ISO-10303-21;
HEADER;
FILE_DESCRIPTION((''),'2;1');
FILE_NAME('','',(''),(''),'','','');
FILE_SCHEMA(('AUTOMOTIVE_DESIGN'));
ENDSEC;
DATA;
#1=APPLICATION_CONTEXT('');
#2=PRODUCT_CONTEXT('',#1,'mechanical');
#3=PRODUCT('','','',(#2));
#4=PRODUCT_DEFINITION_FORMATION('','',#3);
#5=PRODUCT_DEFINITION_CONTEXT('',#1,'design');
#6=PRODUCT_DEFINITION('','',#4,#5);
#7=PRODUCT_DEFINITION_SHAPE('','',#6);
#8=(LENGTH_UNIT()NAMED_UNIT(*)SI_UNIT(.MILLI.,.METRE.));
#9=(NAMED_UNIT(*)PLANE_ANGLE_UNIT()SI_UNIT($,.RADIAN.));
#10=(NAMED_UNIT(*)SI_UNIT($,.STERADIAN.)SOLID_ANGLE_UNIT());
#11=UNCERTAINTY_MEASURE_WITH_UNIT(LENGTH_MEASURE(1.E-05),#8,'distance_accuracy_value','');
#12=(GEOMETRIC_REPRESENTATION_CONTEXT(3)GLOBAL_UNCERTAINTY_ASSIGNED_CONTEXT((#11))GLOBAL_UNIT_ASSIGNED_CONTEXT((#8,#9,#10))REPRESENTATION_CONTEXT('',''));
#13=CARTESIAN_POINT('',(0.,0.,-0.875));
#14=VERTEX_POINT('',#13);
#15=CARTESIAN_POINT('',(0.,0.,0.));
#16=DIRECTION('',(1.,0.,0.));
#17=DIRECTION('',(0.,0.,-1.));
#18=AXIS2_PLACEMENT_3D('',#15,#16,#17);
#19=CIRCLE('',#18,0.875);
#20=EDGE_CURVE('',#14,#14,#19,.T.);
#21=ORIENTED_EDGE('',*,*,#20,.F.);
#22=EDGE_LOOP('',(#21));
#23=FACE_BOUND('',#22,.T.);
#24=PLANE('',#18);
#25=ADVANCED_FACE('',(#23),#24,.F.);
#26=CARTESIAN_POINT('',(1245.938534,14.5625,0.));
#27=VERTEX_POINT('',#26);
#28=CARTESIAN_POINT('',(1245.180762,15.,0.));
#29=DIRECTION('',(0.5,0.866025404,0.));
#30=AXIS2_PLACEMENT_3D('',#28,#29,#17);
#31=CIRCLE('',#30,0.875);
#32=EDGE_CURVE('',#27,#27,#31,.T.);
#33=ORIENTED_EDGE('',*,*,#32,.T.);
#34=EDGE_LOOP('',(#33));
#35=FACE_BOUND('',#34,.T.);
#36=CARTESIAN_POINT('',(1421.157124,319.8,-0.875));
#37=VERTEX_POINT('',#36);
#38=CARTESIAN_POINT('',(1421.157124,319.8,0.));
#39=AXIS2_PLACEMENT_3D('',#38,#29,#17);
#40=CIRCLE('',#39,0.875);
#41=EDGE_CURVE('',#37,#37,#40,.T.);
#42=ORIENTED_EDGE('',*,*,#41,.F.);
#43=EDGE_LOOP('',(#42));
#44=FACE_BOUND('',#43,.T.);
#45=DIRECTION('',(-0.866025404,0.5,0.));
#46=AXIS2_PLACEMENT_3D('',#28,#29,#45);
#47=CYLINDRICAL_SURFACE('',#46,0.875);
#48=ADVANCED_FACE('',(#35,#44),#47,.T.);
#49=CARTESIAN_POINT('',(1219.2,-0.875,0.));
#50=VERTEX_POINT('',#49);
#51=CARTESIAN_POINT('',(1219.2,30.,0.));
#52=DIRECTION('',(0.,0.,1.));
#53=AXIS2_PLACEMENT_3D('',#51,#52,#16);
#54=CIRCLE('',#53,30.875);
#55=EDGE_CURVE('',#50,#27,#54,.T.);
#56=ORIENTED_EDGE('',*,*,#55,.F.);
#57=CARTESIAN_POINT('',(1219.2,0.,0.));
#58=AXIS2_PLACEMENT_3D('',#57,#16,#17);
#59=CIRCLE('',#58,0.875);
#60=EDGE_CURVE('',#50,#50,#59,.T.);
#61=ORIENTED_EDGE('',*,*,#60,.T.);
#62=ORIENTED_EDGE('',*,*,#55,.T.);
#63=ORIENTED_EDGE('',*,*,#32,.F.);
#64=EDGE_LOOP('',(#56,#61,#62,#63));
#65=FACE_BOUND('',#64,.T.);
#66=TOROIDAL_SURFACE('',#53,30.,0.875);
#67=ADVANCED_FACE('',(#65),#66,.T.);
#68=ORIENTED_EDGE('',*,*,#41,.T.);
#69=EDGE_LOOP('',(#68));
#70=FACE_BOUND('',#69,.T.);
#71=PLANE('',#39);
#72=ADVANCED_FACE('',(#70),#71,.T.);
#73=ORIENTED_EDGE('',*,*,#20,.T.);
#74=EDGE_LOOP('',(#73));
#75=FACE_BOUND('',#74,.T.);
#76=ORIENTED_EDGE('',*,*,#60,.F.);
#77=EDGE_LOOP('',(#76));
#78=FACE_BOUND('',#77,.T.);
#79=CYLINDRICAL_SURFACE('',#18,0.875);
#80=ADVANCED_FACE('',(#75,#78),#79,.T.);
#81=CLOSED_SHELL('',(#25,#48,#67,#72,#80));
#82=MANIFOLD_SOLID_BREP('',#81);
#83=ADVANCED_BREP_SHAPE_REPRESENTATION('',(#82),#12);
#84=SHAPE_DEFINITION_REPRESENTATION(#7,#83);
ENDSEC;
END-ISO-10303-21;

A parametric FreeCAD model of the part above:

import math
import FreeCAD as App
import Part
import Sketcher
Q = App.Units.Quantity

doc = App.newDocument("Part")
body = doc.addObject("PartDesign::Body", "Body")

# Sketch on YZ plane
sketch1 = doc.addObject("Sketcher::SketchObject", "Sketch")
body.addObject(sketch1)
sketch1.AttachmentSupport = (doc.YZ_Plane, [""])
sketch1.MapMode = "FlatFace"
sketch1.addGeometry(Part.Circle(App.Vector(0, 0, 0), App.Vector(0, 0, 1), 0.875), False)
sketch1.addConstraint(Sketcher.Constraint("Coincident", 0, 3, -1, 1))
sketch1.addConstraint(Sketcher.Constraint("Diameter", 0, Q("1.75 mm")))

# Sketch on XY plane
sketch2 = doc.addObject("Sketcher::SketchObject", "Sketch001")
body.addObject(sketch2)
sketch2.AttachmentSupport = (doc.XY_Plane, [""])
sketch2.MapMode = "FlatFace"
sketch2.addGeometry(Part.LineSegment(App.Vector(0, 0, 0), App.Vector(1219.2, 0, 0)), False)
sketch2.addGeometry(Part.ArcOfCircle(Part.Circle(App.Vector(1219.2, 30, 0), App.Vector(0, 0, 1), 30), math.radians(-90), math.radians(-30)), False)
sketch2.addGeometry(Part.LineSegment(App.Vector(1245.180762, 15, 0), App.Vector(1421.157124, 319.8, 0)), False)
sketch2.addConstraint(Sketcher.Constraint("Tangent", 0, 2, 1, 1))
sketch2.addConstraint(Sketcher.Constraint("Tangent", 1, 2, 2, 1))
sketch2.addConstraint(Sketcher.Constraint("Horizontal", 0))
sketch2.addConstraint(Sketcher.Constraint("Coincident", 0, 1, -1, 1))
sketch2.addConstraint(Sketcher.Constraint("Radius", 1, Q("30 mm")))
sketch2.addConstraint(Sketcher.Constraint("Angle", 2, Q("60 deg")))
sketch2.addConstraint(Sketcher.Constraint("DistanceX", 0, 1, 0, 2, Q("1219.2 mm")))
sketch2.addConstraint(Sketcher.Constraint("DistanceY", -1, 1, 2, 2, Q("319.8 mm")))
doc.recompute()

additivepipe = doc.addObject("PartDesign::AdditivePipe", "AdditivePipe")
body.addObject(additivepipe)
additivepipe.Profile = sketch1
additivepipe.Spine = (sketch2, ["Edge1", "Edge2", "Edge3"])

doc.recompute()
